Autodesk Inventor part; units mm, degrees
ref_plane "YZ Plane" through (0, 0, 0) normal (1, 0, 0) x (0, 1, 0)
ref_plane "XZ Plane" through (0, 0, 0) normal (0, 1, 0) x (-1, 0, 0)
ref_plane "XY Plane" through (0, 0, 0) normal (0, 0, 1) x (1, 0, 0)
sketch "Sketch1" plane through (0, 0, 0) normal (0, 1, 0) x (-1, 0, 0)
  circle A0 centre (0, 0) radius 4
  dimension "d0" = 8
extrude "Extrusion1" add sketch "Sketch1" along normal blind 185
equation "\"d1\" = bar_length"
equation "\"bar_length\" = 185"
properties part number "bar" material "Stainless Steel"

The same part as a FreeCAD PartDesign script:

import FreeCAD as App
import Part
import Sketcher
from FreeCAD import Vector

doc = App.newDocument("Part")
body = doc.addObject("PartDesign::Body", "Body")

# Sketch on XZ plane
sketch1 = body.newObject("Sketcher::SketchObject", "Sketch")
sketch1.AttachmentSupport = (doc.getObject("XZ_Plane"), [""])
sketch1.MapMode = "FlatFace"
sketch1.addGeometry(Part.Circle(Vector(0, 0, 0), Vector(0, 0, 1), 4), False)
sketch1.addConstraint(Sketcher.Constraint("Coincident", 0, 3, -1, 1))
sketch1.addConstraint(Sketcher.Constraint("Diameter", 0, 8.0))
pad1 = body.newObject("PartDesign::Pad", "Pad")
pad1.Profile = sketch1
pad1.Length = 185
pad1.Reversed = True

doc.recompute()
